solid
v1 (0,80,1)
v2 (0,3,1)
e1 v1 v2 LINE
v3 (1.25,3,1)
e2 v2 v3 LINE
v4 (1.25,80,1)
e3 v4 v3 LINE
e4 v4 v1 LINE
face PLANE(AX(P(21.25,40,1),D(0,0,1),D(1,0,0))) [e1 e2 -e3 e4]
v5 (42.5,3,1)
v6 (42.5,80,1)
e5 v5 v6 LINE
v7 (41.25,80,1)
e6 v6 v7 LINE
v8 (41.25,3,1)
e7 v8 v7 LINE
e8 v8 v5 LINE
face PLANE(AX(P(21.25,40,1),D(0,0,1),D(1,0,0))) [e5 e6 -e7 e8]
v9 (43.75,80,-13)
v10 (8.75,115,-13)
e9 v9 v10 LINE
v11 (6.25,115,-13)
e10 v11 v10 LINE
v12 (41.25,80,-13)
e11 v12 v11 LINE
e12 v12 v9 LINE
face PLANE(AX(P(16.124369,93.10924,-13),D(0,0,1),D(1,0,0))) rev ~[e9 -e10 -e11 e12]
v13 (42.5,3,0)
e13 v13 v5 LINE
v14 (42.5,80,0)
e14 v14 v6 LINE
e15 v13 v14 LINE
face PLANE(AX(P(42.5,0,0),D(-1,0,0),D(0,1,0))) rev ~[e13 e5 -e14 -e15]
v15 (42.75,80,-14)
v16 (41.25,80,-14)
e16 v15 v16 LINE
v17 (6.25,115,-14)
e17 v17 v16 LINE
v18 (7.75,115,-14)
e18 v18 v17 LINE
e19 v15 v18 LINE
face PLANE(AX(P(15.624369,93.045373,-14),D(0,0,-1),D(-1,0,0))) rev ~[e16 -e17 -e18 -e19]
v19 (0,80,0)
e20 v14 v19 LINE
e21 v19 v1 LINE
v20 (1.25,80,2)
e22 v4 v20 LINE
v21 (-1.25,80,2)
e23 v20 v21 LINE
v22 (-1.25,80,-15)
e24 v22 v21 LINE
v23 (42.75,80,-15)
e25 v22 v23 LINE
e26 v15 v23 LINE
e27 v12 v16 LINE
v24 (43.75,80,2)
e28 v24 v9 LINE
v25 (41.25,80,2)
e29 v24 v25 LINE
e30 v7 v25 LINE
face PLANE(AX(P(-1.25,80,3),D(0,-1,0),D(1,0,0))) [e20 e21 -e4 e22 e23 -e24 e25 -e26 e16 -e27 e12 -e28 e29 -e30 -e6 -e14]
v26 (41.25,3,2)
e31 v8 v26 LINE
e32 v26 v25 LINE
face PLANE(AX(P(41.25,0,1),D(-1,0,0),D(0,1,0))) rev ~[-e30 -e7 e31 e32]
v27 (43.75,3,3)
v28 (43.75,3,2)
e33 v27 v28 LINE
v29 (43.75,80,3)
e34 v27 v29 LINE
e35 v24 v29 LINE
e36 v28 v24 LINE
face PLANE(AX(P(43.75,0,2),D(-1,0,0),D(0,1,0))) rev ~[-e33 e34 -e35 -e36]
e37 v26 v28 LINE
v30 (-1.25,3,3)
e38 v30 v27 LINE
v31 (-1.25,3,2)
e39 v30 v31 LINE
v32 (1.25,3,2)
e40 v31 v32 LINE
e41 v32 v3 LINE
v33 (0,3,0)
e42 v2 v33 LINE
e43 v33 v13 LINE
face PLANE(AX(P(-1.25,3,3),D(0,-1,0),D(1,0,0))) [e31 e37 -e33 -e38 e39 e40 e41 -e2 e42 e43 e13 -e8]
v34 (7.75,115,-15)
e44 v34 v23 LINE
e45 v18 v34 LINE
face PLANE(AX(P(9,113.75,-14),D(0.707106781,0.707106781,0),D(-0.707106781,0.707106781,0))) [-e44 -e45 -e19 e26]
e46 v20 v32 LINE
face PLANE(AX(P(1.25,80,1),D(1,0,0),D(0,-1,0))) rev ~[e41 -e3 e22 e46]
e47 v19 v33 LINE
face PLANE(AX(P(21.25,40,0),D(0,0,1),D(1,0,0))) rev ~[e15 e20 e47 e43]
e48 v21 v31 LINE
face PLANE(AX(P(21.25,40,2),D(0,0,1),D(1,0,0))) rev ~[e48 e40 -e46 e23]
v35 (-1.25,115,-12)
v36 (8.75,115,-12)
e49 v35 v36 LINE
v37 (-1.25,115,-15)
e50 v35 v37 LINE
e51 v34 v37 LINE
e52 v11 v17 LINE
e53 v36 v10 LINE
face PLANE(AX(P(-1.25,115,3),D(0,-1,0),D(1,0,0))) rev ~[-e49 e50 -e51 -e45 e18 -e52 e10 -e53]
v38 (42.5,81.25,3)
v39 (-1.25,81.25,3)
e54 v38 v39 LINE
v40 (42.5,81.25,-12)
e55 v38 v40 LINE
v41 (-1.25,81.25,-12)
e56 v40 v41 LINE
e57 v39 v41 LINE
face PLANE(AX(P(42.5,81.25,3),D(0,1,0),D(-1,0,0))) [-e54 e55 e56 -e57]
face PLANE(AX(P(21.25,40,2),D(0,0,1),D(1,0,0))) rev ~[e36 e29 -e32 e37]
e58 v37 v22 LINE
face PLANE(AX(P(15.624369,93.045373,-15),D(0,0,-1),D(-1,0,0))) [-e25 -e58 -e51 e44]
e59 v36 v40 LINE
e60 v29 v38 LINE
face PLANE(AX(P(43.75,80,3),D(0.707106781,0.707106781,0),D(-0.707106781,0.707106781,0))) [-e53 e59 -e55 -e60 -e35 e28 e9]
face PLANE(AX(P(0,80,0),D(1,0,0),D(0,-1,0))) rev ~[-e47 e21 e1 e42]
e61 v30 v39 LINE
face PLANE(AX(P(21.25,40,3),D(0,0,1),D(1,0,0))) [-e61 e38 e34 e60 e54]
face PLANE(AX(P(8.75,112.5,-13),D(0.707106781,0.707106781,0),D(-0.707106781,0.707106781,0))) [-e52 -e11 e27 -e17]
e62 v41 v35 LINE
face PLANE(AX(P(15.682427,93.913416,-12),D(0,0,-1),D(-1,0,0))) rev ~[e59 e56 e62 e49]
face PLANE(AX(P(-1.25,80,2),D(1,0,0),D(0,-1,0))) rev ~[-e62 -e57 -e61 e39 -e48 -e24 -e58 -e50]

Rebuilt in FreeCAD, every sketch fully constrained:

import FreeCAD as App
import Part
import Sketcher
Q = App.Units.Quantity


def add_polygon(sketch, points):
    """Adds a closed chain of lines whose ends are joined by coincident constraints."""
    first, n = sketch.GeometryCount, len(points)
    for a, b in zip(points, points[1:] + points[:1]):
        sketch.addGeometry(Part.LineSegment(App.Vector(*a, 0), App.Vector(*b, 0)), False)
    for i in range(n):
        sketch.addConstraint(Sketcher.Constraint("Coincident", first + i, 2, first + (i + 1) % n, 1))

doc = App.newDocument("Part")
params = doc.addObject("Spreadsheet::Sheet", "Params")
for row, (alias, value) in enumerate([
    ("sketch1_height", "80 mm"),
    ("sketch1_width", "42.5 mm"),
    ("pad1_length", "1 mm"),
    ("sketch2_width", "40 mm"),
    ("sketch2_height", "80 mm"),
    ("pad2_length", "1 mm"),
    ("sketch3_width", "45 mm"),
    ("sketch3_height", "80 mm"),
    ("pad3_length", "1 mm"),
    ("sketch4_width", "10 mm"),
    ("sketch4_width2", "45 mm"),
    ("sketch4_height", "35 mm"),
    ("pad4_length", "16 mm"),
    ("sketch5_width", "10 mm"),
    ("sketch5_width2", "43.75 mm"),
    ("pocket1_length", "15 mm"),
    ("sketch6_height", "35 mm"),
    ("sketch6_width", "42.5 mm"),
    ("pad5_length", "1 mm"),
    ("sketch7_width", "9 mm"),
    ("sketch7_width2", "44 mm"),
    ("sketch7_height", "35 mm"),
    ("pad6_length", "1 mm"),
    ("sketch8_width", "45 mm"),
    ("sketch8_height", "3 mm"),
    ("pocket2_length", "3 mm"),
], start=1):
    params.set(f"A{row}", alias)
    params.set(f"B{row}", "=" + value)
    params.setAlias(f"B{row}", alias)

body = doc.addObject("PartDesign::Body", "Body")

# Sketch on XY plane
sketch1 = body.newObject("Sketcher::SketchObject", "Sketch")
sketch1.AttachmentSupport = (doc.getObject("XY_Plane"), [""])
sketch1.MapMode = "FlatFace"
add_polygon(sketch1, [(0, 80), (0, 0), (42.5, 0), (42.5, 80)])  # lines 0-3
sketch1.addConstraint([
    Sketcher.Constraint("Vertical", 0),
    Sketcher.Constraint("Horizontal", 1),
    Sketcher.Constraint("Vertical", 2),
    Sketcher.Constraint("Horizontal", 3),
    Sketcher.Constraint("Coincident", 0, 2, -1, 1),
    Sketcher.Constraint("DistanceY", 0, 2, 0, 1, Q("80 mm")),
    Sketcher.Constraint("DistanceX", 1, 1, 1, 2, Q("42.5 mm")),
])
sketch1.setExpression("Constraints[9]", "Params.sketch1_height")
sketch1.setExpression("Constraints[10]", "Params.sketch1_width")
pad1 = body.newObject("PartDesign::Pad", "Pad")
pad1.Profile = sketch1
pad1.setExpression("Length", "Params.pad1_length")

# Sketch on XY plane
sketch2 = body.newObject("Sketcher::SketchObject", "Sketch001")
sketch2.AttachmentSupport = (doc.getObject("XY_Plane"), [""])
sketch2.MapMode = "FlatFace"
sketch2.AttachmentOffset = App.Placement(App.Vector(0, 0, 1), App.Rotation())
add_polygon(sketch2, [(41.25, 80), (1.25, 80), (1.25, 0), (41.25, 0)])  # lines 0-3
sketch2.addConstraint([
    Sketcher.Constraint("Horizontal", 0),
    Sketcher.Constraint("Vertical", 1),
    Sketcher.Constraint("Horizontal", 2),
    Sketcher.Constraint("Vertical", 3),
    Sketcher.Constraint("PointOnObject", 1, 2, -1),
    Sketcher.Constraint("DistanceX", 0, 2, 0, 1, Q("40 mm")),
    Sketcher.Constraint("DistanceY", 1, 2, 1, 1, Q("80 mm")),
    Sketcher.Constraint("DistanceX", -1, 1, 0, 2, Q("1.25 mm")),
])
sketch2.setExpression("Constraints[9]", "Params.sketch2_width")
sketch2.setExpression("Constraints[10]", "Params.sketch2_height")
pad2 = body.newObject("PartDesign::Pad", "Pad001")
pad2.Profile = sketch2
pad2.setExpression("Length", "Params.pad2_length")

# Sketch on XY plane
sketch3 = body.newObject("Sketcher::SketchObject", "Sketch002")
sketch3.AttachmentSupport = (doc.getObject("XY_Plane"), [""])
sketch3.MapMode = "FlatFace"
sketch3.AttachmentOffset = App.Placement(App.Vector(0, 0, 2), App.Rotation())
add_polygon(sketch3, [(-1.25, 80), (-1.25, 0), (43.75, 0), (43.75, 80)])  # lines 0-3
sketch3.addConstraint([
    Sketcher.Constraint("Vertical", 0),
    Sketcher.Constraint("Horizontal", 1),
    Sketcher.Constraint("Vertical", 2),
    Sketcher.Constraint("Horizontal", 3),
    Sketcher.Constraint("PointOnObject", 0, 2, -1),
    Sketcher.Constraint("DistanceX", 1, 1, 1, 2, Q("45 mm")),
    Sketcher.Constraint("DistanceY", 0, 2, 0, 1, Q("80 mm")),
    Sketcher.Constraint("DistanceX", 0, 2, -1, 1, Q("1.25 mm")),
])
sketch3.setExpression("Constraints[9]", "Params.sketch3_width")
sketch3.setExpression("Constraints[10]", "Params.sketch3_height")
pad3 = body.newObject("PartDesign::Pad", "Pad002")
pad3.Profile = sketch3
pad3.setExpression("Length", "Params.pad3_length")

# Sketch on XY plane
sketch4 = body.newObject("Sketcher::SketchObject", "Sketch003")
sketch4.AttachmentSupport = (doc.getObject("XY_Plane"), [""])
sketch4.MapMode = "FlatFace"
sketch4.AttachmentOffset = App.Placement(App.Vector(0, 0, 3), App.Rotation())
add_polygon(sketch4, [(8.75, 115), (-1.25, 115), (-1.25, 80), (43.75, 80)])  # lines 0-3
sketch4.addConstraint([
    Sketcher.Constraint("Horizontal", 0),
    Sketcher.Constraint("Vertical", 1),
    Sketcher.Constraint("Horizontal", 2),
    Sketcher.Constraint("DistanceX", 0, 2, 0, 1, Q("10 mm")),
    Sketcher.Constraint("DistanceX", 2, 1, 2, 2, Q("45 mm")),
    Sketcher.Constraint("DistanceY", 1, 2, 1, 1, Q("35 mm")),
    Sketcher.Constraint("DistanceY", -1, 1, 0, 2, Q("115 mm")),
    Sketcher.Constraint("DistanceX", 0, 2, -1, 1, Q("1.25 mm")),
])
sketch4.setExpression("Constraints[7]", "Params.sketch4_width")
sketch4.setExpression("Constraints[8]", "Params.sketch4_width2")
sketch4.setExpression("Constraints[9]", "Params.sketch4_height")
pad4 = body.newObject("PartDesign::Pad", "Pad003")
pad4.Profile = sketch4
pad4.setExpression("Length", "Params.pad4_length")
pad4.Reversed = True

# Sketch on XY plane
sketch5 = body.newObject("Sketcher::SketchObject", "Sketch004")
sketch5.AttachmentSupport = (doc.getObject("XY_Plane"), [""])
sketch5.MapMode = "FlatFace"
sketch5.AttachmentOffset = App.Placement(App.Vector(0, 0, 3), App.Rotation())
add_polygon(sketch5, [(-1.25, 81.25), (42.5, 81.25), (8.75, 115), (-1.25, 115)])  # lines 0-3
sketch5.addConstraint([
    Sketcher.Constraint("Horizontal", 0),
    Sketcher.Constraint("Horizontal", 2),
    Sketcher.Constraint("Vertical", 3),
    Sketcher.Constraint("DistanceX", 2, 2, 2, 1, Q("10 mm")),
    Sketcher.Constraint("Angle", 1, Q("135 deg")),
    Sketcher.Constraint("DistanceY", -1, 1, 1, 2, Q("115 mm")),
    Sketcher.Constraint("DistanceX", 0, 1, 0, 2, Q("43.75 mm")),
    Sketcher.Constraint("DistanceX", -1, 1, 0, 2, Q("42.5 mm")),
])
sketch5.setExpression("Constraints[7]", "Params.sketch5_width")
sketch5.setExpression("Constraints[10]", "Params.sketch5_width2")
pocket1 = body.newObject("PartDesign::Pocket", "Pocket")
pocket1.Profile = sketch5
pocket1.setExpression("Length", "Params.pocket1_length")

# Sketch on XY plane
sketch6 = body.newObject("Sketcher::SketchObject", "Sketch005")
sketch6.AttachmentSupport = (doc.getObject("XY_Plane"), [""])
sketch6.MapMode = "FlatFace"
sketch6.AttachmentOffset = App.Placement(App.Vector(0, 0, -13), App.Rotation())
add_polygon(sketch6, [(6.25, 115), (41.25, 80), (-1.25, 80), (-1.25, 115)])  # lines 0-3
sketch6.addConstraint([
    Sketcher.Constraint("Horizontal", 1),
    Sketcher.Constraint("Vertical", 2),
    Sketcher.Constraint("Horizontal", 3),
    Sketcher.Constraint("DistanceY", 2, 1, 2, 2, Q("35 mm")),
    Sketcher.Constraint("Angle", 0, Q("-45 deg")),
    Sketcher.Constraint("DistanceX", 1, 2, 1, 1, Q("42.5 mm")),
    Sketcher.Constraint("DistanceY", -1, 1, 0, 2, Q("80 mm")),
    Sketcher.Constraint("DistanceX", -1, 1, 0, 2, Q("41.25 mm")),
])
sketch6.setExpression("Constraints[7]", "Params.sketch6_height")
sketch6.setExpression("Constraints[9]", "Params.sketch6_width")
pad5 = body.newObject("PartDesign::Pad", "Pad004")
pad5.Profile = sketch6
pad5.setExpression("Length", "Params.pad5_length")
pad5.Reversed = True

# Sketch on XY plane
sketch7 = body.newObject("Sketcher::SketchObject", "Sketch006")
sketch7.AttachmentSupport = (doc.getObject("XY_Plane"), [""])
sketch7.MapMode = "FlatFace"
sketch7.AttachmentOffset = App.Placement(App.Vector(0, 0, -14), App.Rotation())
add_polygon(sketch7, [(-1.25, 80), (-1.25, 115), (7.75, 115), (42.75, 80)])  # lines 0-3
sketch7.addConstraint([
    Sketcher.Constraint("Vertical", 0),
    Sketcher.Constraint("Horizontal", 1),
    Sketcher.Constraint("Horizontal", 3),
    Sketcher.Constraint("DistanceX", 1, 1, 1, 2, Q("9 mm")),
    Sketcher.Constraint("DistanceX", 3, 2, 3, 1, Q("44 mm")),
    Sketcher.Constraint("DistanceY", 0, 1, 0, 2, Q("35 mm")),
    Sketcher.Constraint("DistanceY", -1, 1, 0, 2, Q("115 mm")),
    Sketcher.Constraint("DistanceX", 0, 2, -1, 1, Q("1.25 mm")),
])
sketch7.setExpression("Constraints[7]", "Params.sketch7_width")
sketch7.setExpression("Constraints[8]", "Params.sketch7_width2")
sketch7.setExpression("Constraints[9]", "Params.sketch7_height")
pad6 = body.newObject("PartDesign::Pad", "Pad005")
pad6.Profile = sketch7
pad6.setExpression("Length", "Params.pad6_length")
pad6.Reversed = True

# Sketch on XY plane
sketch8 = body.newObject("Sketcher::SketchObject", "Sketch007")
sketch8.AttachmentSupport = (doc.getObject("XY_Plane"), [""])
sketch8.MapMode = "FlatFace"
sketch8.AttachmentOffset = App.Placement(App.Vector(0, 0, 3), App.Rotation())
add_polygon(sketch8, [(-1.25, 0), (43.75, 0), (43.75, 3), (-1.25, 3)])  # lines 0-3
sketch8.addConstraint([
    Sketcher.Constraint("Horizontal", 0),
    Sketcher.Constraint("Vertical", 1),
    Sketcher.Constraint("Horizontal", 2),
    Sketcher.Constraint("Vertical", 3),
    Sketcher.Constraint("PointOnObject", 0, 2, -1),
    Sketcher.Constraint("DistanceX", 0, 1, 0, 2, Q("45 mm")),
    Sketcher.Constraint("DistanceY", 1, 1, 1, 2, Q("3 mm")),
    Sketcher.Constraint("DistanceX", -1, 1, 0, 2, Q("43.75 mm")),
])
sketch8.setExpression("Constraints[9]", "Params.sketch8_width")
sketch8.setExpression("Constraints[10]", "Params.sketch8_height")
pocket2 = body.newObject("PartDesign::Pocket", "Pocket001")
pocket2.Profile = sketch8
pocket2.setExpression("Length", "Params.pocket2_length")

doc.recompute()
